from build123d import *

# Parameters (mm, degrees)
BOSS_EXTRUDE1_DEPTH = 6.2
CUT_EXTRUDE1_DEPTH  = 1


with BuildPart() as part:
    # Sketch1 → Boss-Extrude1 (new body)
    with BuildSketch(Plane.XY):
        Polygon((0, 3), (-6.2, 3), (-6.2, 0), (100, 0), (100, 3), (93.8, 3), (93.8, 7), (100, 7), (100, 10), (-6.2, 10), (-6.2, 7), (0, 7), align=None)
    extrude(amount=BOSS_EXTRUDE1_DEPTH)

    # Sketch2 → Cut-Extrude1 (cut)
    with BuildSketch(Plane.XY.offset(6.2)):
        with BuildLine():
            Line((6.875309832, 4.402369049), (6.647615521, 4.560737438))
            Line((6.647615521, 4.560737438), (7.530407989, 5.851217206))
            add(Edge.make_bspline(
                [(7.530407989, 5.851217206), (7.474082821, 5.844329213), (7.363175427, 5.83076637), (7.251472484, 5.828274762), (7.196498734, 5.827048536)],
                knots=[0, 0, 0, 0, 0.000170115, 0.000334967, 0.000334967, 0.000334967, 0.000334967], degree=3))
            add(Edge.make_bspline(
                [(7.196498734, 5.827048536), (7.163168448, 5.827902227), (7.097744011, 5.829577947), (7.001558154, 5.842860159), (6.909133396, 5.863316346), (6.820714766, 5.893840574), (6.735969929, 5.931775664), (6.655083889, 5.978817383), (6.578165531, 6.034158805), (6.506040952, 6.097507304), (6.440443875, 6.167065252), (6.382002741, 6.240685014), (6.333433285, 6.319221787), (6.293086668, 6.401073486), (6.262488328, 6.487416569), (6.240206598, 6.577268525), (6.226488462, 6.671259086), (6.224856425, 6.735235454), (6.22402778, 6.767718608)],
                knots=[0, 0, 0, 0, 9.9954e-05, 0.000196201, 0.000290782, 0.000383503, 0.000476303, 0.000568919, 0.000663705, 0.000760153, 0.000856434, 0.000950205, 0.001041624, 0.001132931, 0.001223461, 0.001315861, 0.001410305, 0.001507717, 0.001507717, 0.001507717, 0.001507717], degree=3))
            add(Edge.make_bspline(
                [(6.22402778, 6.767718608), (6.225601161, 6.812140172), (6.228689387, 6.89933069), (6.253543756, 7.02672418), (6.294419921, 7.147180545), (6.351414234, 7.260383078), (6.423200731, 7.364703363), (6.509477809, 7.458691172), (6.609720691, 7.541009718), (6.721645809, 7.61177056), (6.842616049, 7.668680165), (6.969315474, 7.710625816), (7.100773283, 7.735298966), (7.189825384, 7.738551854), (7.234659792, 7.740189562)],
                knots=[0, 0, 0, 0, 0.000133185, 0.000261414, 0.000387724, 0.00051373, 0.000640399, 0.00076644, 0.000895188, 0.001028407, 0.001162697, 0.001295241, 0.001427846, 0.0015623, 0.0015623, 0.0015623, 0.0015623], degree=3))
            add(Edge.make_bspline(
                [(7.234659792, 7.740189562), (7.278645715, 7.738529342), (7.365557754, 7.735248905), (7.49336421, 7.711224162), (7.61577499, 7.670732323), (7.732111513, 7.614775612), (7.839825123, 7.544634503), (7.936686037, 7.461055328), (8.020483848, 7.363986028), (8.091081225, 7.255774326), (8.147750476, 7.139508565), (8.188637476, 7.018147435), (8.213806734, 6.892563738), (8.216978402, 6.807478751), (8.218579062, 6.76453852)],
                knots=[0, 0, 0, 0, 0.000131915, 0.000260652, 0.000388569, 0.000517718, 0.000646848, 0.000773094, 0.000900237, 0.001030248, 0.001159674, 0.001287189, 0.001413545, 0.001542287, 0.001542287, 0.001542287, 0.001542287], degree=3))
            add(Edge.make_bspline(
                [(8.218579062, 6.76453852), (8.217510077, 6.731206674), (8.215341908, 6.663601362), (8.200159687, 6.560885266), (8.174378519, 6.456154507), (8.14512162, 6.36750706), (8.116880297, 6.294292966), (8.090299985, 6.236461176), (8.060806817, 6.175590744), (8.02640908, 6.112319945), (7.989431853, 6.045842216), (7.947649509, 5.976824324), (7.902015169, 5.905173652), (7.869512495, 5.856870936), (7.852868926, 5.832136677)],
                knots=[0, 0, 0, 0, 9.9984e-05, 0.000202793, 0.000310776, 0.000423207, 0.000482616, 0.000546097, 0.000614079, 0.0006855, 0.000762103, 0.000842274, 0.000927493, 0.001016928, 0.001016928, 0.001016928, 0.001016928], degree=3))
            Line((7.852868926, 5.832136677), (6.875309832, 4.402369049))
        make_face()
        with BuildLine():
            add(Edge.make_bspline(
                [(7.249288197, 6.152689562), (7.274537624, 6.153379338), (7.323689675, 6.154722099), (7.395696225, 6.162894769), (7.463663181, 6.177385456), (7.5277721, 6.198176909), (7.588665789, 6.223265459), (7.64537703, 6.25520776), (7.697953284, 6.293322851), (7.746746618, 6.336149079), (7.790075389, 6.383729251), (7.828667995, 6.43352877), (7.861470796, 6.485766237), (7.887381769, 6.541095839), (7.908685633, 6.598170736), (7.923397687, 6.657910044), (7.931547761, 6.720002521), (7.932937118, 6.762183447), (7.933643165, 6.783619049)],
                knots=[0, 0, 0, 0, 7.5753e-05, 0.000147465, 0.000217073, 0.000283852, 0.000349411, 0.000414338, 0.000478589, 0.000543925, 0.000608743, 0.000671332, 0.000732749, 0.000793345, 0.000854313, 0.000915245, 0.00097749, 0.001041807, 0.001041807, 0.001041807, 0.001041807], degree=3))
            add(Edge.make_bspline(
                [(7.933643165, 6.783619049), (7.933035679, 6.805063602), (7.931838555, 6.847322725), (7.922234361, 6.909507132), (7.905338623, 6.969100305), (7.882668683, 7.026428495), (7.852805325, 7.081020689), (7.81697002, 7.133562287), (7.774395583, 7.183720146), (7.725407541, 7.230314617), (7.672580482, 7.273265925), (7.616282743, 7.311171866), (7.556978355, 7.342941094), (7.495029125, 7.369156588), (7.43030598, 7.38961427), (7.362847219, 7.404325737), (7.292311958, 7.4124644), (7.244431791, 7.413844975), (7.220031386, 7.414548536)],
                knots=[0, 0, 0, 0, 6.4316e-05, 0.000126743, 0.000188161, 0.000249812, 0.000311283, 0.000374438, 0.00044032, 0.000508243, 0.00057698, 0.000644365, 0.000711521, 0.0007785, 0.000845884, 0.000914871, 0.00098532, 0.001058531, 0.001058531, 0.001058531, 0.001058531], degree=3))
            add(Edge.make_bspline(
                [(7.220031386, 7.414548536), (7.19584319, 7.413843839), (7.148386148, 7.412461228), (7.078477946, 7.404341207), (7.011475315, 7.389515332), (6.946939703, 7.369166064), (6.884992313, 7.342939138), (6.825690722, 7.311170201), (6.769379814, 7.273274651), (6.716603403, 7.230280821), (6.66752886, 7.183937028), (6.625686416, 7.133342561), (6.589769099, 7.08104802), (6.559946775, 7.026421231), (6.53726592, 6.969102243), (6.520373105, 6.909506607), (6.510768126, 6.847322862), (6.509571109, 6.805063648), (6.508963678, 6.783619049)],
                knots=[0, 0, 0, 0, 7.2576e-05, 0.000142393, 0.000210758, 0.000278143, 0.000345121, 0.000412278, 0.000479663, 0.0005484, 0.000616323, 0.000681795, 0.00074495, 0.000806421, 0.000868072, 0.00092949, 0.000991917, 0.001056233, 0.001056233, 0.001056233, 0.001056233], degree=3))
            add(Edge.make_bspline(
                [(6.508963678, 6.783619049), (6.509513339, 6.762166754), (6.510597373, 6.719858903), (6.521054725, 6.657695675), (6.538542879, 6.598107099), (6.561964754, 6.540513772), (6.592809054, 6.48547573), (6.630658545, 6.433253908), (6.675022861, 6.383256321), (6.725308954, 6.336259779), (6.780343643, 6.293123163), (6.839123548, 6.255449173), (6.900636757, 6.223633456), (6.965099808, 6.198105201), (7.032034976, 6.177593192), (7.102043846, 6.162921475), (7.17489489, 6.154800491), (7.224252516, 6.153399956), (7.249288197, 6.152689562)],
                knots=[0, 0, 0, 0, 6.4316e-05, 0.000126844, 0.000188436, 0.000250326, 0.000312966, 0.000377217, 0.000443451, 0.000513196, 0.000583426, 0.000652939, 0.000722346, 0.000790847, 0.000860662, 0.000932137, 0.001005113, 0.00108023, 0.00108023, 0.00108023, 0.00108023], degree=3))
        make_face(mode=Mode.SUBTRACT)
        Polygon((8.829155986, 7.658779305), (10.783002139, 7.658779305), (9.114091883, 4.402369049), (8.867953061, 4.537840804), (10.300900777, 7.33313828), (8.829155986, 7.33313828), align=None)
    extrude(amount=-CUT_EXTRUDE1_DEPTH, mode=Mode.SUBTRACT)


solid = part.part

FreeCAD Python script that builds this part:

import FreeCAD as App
import Part
import Sketcher


def add_polygon(sketch, points):
    """Adds a closed chain of lines whose ends are joined by coincident constraints."""
    first, n = sketch.GeometryCount, len(points)
    for a, b in zip(points, points[1:] + points[:1]):
        sketch.addGeometry(Part.LineSegment(App.Vector(*a, 0), App.Vector(*b, 0)), False)
    for i in range(n):
        sketch.addConstraint(Sketcher.Constraint("Coincident", first + i, 2, first + (i + 1) % n, 1))

doc = App.newDocument("Part")
body = doc.addObject("PartDesign::Body", "Body")

sketch1 = body.newObject("Sketcher::SketchObject", "Sketch")
sketch1.AttachmentSupport = (doc.getObject("XY_Plane"), [""])
sketch1.MapMode = "FlatFace"
add_polygon(sketch1, [(0, 3), (-6.2, 3), (-6.2, 0), (100, 0), (100, 3), (93.8, 3), (93.8, 7), (100, 7), (100, 10), (-6.2, 10), (-6.2, 7), (0, 7)])
sketch1.addConstraint(Sketcher.Constraint("Horizontal", 0))
sketch1.addConstraint(Sketcher.Constraint("Vertical", 1))
sketch1.addConstraint(Sketcher.Constraint("Horizontal", 2))
sketch1.addConstraint(Sketcher.Constraint("Vertical", 3))
sketch1.addConstraint(Sketcher.Constraint("Horizontal", 4))
sketch1.addConstraint(Sketcher.Constraint("Vertical", 5))
sketch1.addConstraint(Sketcher.Constraint("Horizontal", 6))
sketch1.addConstraint(Sketcher.Constraint("Vertical", 7))
sketch1.addConstraint(Sketcher.Constraint("Horizontal", 8))
sketch1.addConstraint(Sketcher.Constraint("Vertical", 9))
sketch1.addConstraint(Sketcher.Constraint("Horizontal", 10))
sketch1.addConstraint(Sketcher.Constraint("Vertical", 11))
sketch1.addConstraint(Sketcher.Constraint("PointOnObject", 1, 2, -1))
sketch1.addConstraint(Sketcher.Constraint("PointOnObject", 10, 2, -2))
sketch1.addConstraint(Sketcher.Constraint("Horizontal", 0, 2, 3, 2))
sketch1.addConstraint(Sketcher.Constraint("Horizontal", 6, 2, 9, 2))
sketch1.addConstraint(Sketcher.Constraint("Vertical", 3, 2, 6, 2))
sketch1.addConstraint(Sketcher.Constraint("Vertical", 1, 2, 8, 2))
sketch1.addConstraint(Sketcher.Constraint("Equal", 0, 4))
sketch1.addConstraint(Sketcher.Constraint("Equal", 3, 7))
sketch1.addConstraint(Sketcher.Constraint("DistanceY", 1, 2, 1, 1, 3.0))
sketch1.addConstraint(Sketcher.Constraint("DistanceY", 5, 1, 5, 2, 4.0))
sketch1.addConstraint(Sketcher.Constraint("DistanceX", 0, 2, 0, 1, 6.2))
sketch1.addConstraint(Sketcher.Constraint("DistanceX", 2, 1, 2, 2, 106.2))
pad1 = body.newObject("PartDesign::Pad", "Pad")
pad1.Profile = sketch1
pad1.Length = 6.2

sketch2 = body.newObject("Sketcher::SketchObject", "Sketch001")
sketch2.AttachmentSupport = (doc.getObject("XY_Plane"), [""])
sketch2.MapMode = "FlatFace"
sketch2.AttachmentOffset = App.Placement(App.Vector(0, 0, 6.2), App.Rotation())
sketch2.addGeometry(Part.LineSegment(App.Vector(6.647616, 4.560737, 0), App.Vector(6.87531, 4.402369, 0)), False)
sketch2.addGeometry(Part.LineSegment(App.Vector(6.87531, 4.402369, 0), App.Vector(7.852869, 5.832137, 0)), False)
sketch2.addGeometry(Part.BSplineCurve([App.Vector(8.218579, 6.764539, 0), App.Vector(8.21751, 6.731207, 0), App.Vector(8.215342, 6.663601, 0), App.Vector(8.20016, 6.560885, 0), App.Vector(8.174379, 6.456155, 0), App.Vector(8.145122, 6.367507, 0), App.Vector(8.11688, 6.294293, 0), App.Vector(8.0903, 6.236461, 0), App.Vector(8.060807, 6.175591, 0), App.Vector(8.026409, 6.11232, 0), App.Vector(7.989432, 6.045842, 0), App.Vector(7.94765, 5.976824, 0), App.Vector(7.902015, 5.905174, 0), App.Vector(7.869512, 5.856871, 0), App.Vector(7.852869, 5.832137, 0)], [4, 1, 1, 1, 1, 1, 1, 1, 1, 1, 1, 1, 4], [0, 0.000099984, 0.000202793, 0.000310776, 0.000423207, 0.000482616, 0.000546097, 0.000614079, 0.0006855, 0.000762103, 0.000842274, 0.000927493, 0.001016928], False, 3, [1, 1, 1, 1, 1, 1, 1, 1, 1, 1, 1, 1, 1, 1, 1], False), False)
sketch2.addGeometry(Part.BSplineCurve([App.Vector(7.23466, 7.74019, 0), App.Vector(7.278646, 7.738529, 0), App.Vector(7.365558, 7.735249, 0), App.Vector(7.493364, 7.711224, 0), App.Vector(7.615775, 7.670732, 0), App.Vector(7.732112, 7.614776, 0), App.Vector(7.839825, 7.544635, 0), App.Vector(7.936686, 7.461055, 0), App.Vector(8.020484, 7.363986, 0), App.Vector(8.091081, 7.255774, 0), App.Vector(8.14775, 7.139509, 0), App.Vector(8.188637, 7.018147, 0), App.Vector(8.213807, 6.892564, 0), App.Vector(8.216978, 6.807479, 0), App.Vector(8.218579, 6.764539, 0)], [4, 1, 1, 1, 1, 1, 1, 1, 1, 1, 1, 1, 4], [0, 0.000131915, 0.000260652, 0.000388569, 0.000517718, 0.000646848, 0.000773094, 0.000900237, 0.001030248, 0.001159674, 0.001287189, 0.001413545, 0.001542287], False, 3, [1, 1, 1, 1, 1, 1, 1, 1, 1, 1, 1, 1, 1, 1, 1], False), False)
sketch2.addGeometry(Part.BSplineCurve([App.Vector(6.224028, 6.767719, 0), App.Vector(6.225601, 6.81214, 0), App.Vector(6.228689, 6.899331, 0), App.Vector(6.253544, 7.026724, 0), App.Vector(6.29442, 7.147181, 0), App.Vector(6.351414, 7.260383, 0), App.Vector(6.423201, 7.364703, 0), App.Vector(6.509478, 7.458691, 0), App.Vector(6.609721, 7.54101, 0), App.Vector(6.721646, 7.611771, 0), App.Vector(6.842616, 7.66868, 0), App.Vector(6.969315, 7.710626, 0), App.Vector(7.100773, 7.735299, 0), App.Vector(7.189825, 7.738552, 0), App.Vector(7.23466, 7.74019, 0)], [4, 1, 1, 1, 1, 1, 1, 1, 1, 1, 1, 1, 4], [0, 0.000133185, 0.000261414, 0.000387724, 0.00051373, 0.000640399, 0.00076644, 0.000895188, 0.001028407, 0.001162697, 0.001295241, 0.001427846, 0.0015623], False, 3, [1, 1, 1, 1, 1, 1, 1, 1, 1, 1, 1, 1, 1, 1, 1], False), False)
sketch2.addGeometry(Part.BSplineCurve([App.Vector(7.196499, 5.827049, 0), App.Vector(7.163168, 5.827902, 0), App.Vector(7.097744, 5.829578, 0), App.Vector(7.001558, 5.84286, 0), App.Vector(6.909133, 5.863316, 0), App.Vector(6.820715, 5.893841, 0), App.Vector(6.73597, 5.931776, 0), App.Vector(6.655084, 5.978817, 0), App.Vector(6.578166, 6.034159, 0), App.Vector(6.506041, 6.097507, 0), App.Vector(6.440444, 6.167065, 0), App.Vector(6.382003, 6.240685, 0), App.Vector(6.333433, 6.319222, 0), App.Vector(6.293087, 6.401073, 0), App.Vector(6.262488, 6.487417, 0), App.Vector(6.240207, 6.577269, 0), App.Vector(6.226488, 6.671259, 0), App.Vector(6.224856, 6.735235, 0), App.Vector(6.224028, 6.767719, 0)], [4, 1, 1, 1, 1, 1, 1, 1, 1, 1, 1, 1, 1, 1, 1, 1, 4], [0, 0.000099954, 0.000196201, 0.000290782, 0.000383503, 0.000476303, 0.000568919, 0.000663705, 0.000760153, 0.000856434, 0.000950205, 0.001041624, 0.001132931, 0.001223461, 0.001315861, 0.001410305, 0.001507717], False, 3, [1, 1, 1, 1, 1, 1, 1, 1, 1, 1, 1, 1, 1, 1, 1, 1, 1, 1, 1], False), False)
sketch2.addGeometry(Part.BSplineCurve([App.Vector(7.530408, 5.851217, 0), App.Vector(7.474083, 5.844329, 0), App.Vector(7.363175, 5.830766, 0), App.Vector(7.251472, 5.828275, 0), App.Vector(7.196499, 5.827049, 0)], [4, 1, 4], [0, 0.000170115, 0.000334967], False, 3, [1, 1, 1, 1, 1], False), False)
sketch2.addGeometry(Part.LineSegment(App.Vector(7.530408, 5.851217, 0), App.Vector(6.647616, 4.560737, 0)), False)
sketch2.addGeometry(Part.BSplineCurve([App.Vector(6.508964, 6.783619, 0), App.Vector(6.509513, 6.762167, 0), App.Vector(6.510597, 6.719859, 0), App.Vector(6.521055, 6.657696, 0), App.Vector(6.538543, 6.598107, 0), App.Vector(6.561965, 6.540514, 0), App.Vector(6.592809, 6.485476, 0), App.Vector(6.630659, 6.433254, 0), App.Vector(6.675023, 6.383256, 0), App.Vector(6.725309, 6.33626, 0), App.Vector(6.780344, 6.293123, 0), App.Vector(6.839124, 6.255449, 0), App.Vector(6.900637, 6.223633, 0), App.Vector(6.9651, 6.198105, 0), App.Vector(7.032035, 6.177593, 0), App.Vector(7.102044, 6.162921, 0), App.Vector(7.174895, 6.1548, 0), App.Vector(7.224253, 6.1534, 0), App.Vector(7.249288, 6.15269, 0)], [4, 1, 1, 1, 1, 1, 1, 1, 1, 1, 1, 1, 1, 1, 1, 1, 4], [0, 0.000064316, 0.000126844, 0.000188436, 0.000250326, 0.000312966, 0.000377217, 0.000443451, 0.000513196, 0.000583426, 0.000652939, 0.000722346, 0.000790847, 0.000860662, 0.000932137, 0.001005113, 0.00108023], False, 3, [1, 1, 1, 1, 1, 1, 1, 1, 1, 1, 1, 1, 1, 1, 1, 1, 1, 1, 1], False), False)
sketch2.addGeometry(Part.BSplineCurve([App.Vector(7.220031, 7.414549, 0), App.Vector(7.195843, 7.413844, 0), App.Vector(7.148386, 7.412461, 0), App.Vector(7.078478, 7.404341, 0), App.Vector(7.011475, 7.389515, 0), App.Vector(6.94694, 7.369166, 0), App.Vector(6.884992, 7.342939, 0), App.Vector(6.825691, 7.31117, 0), App.Vector(6.76938, 7.273275, 0), App.Vector(6.716603, 7.230281, 0), App.Vector(6.667529, 7.183937, 0), App.Vector(6.625686, 7.133343, 0), App.Vector(6.589769, 7.081048, 0), App.Vector(6.559947, 7.026421, 0), App.Vector(6.537266, 6.969102, 0), App.Vector(6.520373, 6.909507, 0), App.Vector(6.510768, 6.847323, 0), App.Vector(6.509571, 6.805064, 0), App.Vector(6.508964, 6.783619, 0)], [4, 1, 1, 1, 1, 1, 1, 1, 1, 1, 1, 1, 1, 1, 1, 1, 4], [0, 0.000072576, 0.000142393, 0.000210758, 0.000278143, 0.000345121, 0.000412278, 0.000479663, 0.0005484, 0.000616323, 0.000681795, 0.00074495, 0.000806421, 0.000868072, 0.00092949, 0.000991917, 0.001056233], False, 3, [1, 1, 1, 1, 1, 1, 1, 1, 1, 1, 1, 1, 1, 1, 1, 1, 1, 1, 1], False), False)
sketch2.addGeometry(Part.BSplineCurve([App.Vector(7.933643, 6.783619, 0), App.Vector(7.933036, 6.805064, 0), App.Vector(7.931839, 6.847323, 0), App.Vector(7.922234, 6.909507, 0), App.Vector(7.905339, 6.9691, 0), App.Vector(7.882669, 7.026428, 0), App.Vector(7.852805, 7.081021, 0), App.Vector(7.81697, 7.133562, 0), App.Vector(7.774396, 7.18372, 0), App.Vector(7.725408, 7.230315, 0), App.Vector(7.67258, 7.273266, 0), App.Vector(7.616283, 7.311172, 0), App.Vector(7.556978, 7.342941, 0), App.Vector(7.495029, 7.369157, 0), App.Vector(7.430306, 7.389614, 0), App.Vector(7.362847, 7.404326, 0), App.Vector(7.292312, 7.412464, 0), App.Vector(7.244432, 7.413845, 0), App.Vector(7.220031, 7.414549, 0)], [4, 1, 1, 1, 1, 1, 1, 1, 1, 1, 1, 1, 1, 1, 1, 1, 4], [0, 0.000064316, 0.000126743, 0.000188161, 0.000249812, 0.000311283, 0.000374438, 0.00044032, 0.000508243, 0.00057698, 0.000644365, 0.000711521, 0.0007785, 0.000845884, 0.000914871, 0.00098532, 0.001058531], False, 3, [1, 1, 1, 1, 1, 1, 1, 1, 1, 1, 1, 1, 1, 1, 1, 1, 1, 1, 1], False), False)
sketch2.addGeometry(Part.BSplineCurve([App.Vector(7.249288, 6.15269, 0), App.Vector(7.274538, 6.153379, 0), App.Vector(7.32369, 6.154722, 0), App.Vector(7.395696, 6.162895, 0), App.Vector(7.463663, 6.177385, 0), App.Vector(7.527772, 6.198177, 0), App.Vector(7.588666, 6.223265, 0), App.Vector(7.645377, 6.255208, 0), App.Vector(7.697953, 6.293323, 0), App.Vector(7.746747, 6.336149, 0), App.Vector(7.790075, 6.383729, 0), App.Vector(7.828668, 6.433529, 0), App.Vector(7.861471, 6.485766, 0), App.Vector(7.887382, 6.541096, 0), App.Vector(7.908686, 6.598171, 0), App.Vector(7.923398, 6.65791, 0), App.Vector(7.931548, 6.720003, 0), App.Vector(7.932937, 6.762183, 0), App.Vector(7.933643, 6.783619, 0)], [4, 1, 1, 1, 1, 1, 1, 1, 1, 1, 1, 1, 1, 1, 1, 1, 4], [0, 0.000075753, 0.000147465, 0.000217073, 0.000283852, 0.000349411, 0.000414338, 0.000478589, 0.000543925, 0.000608743, 0.000671332, 0.000732749, 0.000793345, 0.000854313, 0.000915245, 0.00097749, 0.001041807], False, 3, [1, 1, 1, 1, 1, 1, 1, 1, 1, 1, 1, 1, 1, 1, 1, 1, 1, 1, 1], False), False)
add_polygon(sketch2, [(10.783002, 7.658779), (8.829156, 7.658779), (8.829156, 7.333138), (10.300901, 7.333138), (8.867953, 4.537841), (9.114092, 4.402369)])
sketch2.addConstraint(Sketcher.Constraint("Block", 2))
sketch2.addConstraint(Sketcher.Constraint("Block", 3))
sketch2.addConstraint(Sketcher.Constraint("Block", 4))
sketch2.addConstraint(Sketcher.Constraint("Block", 5))
sketch2.addConstraint(Sketcher.Constraint("Block", 6))
sketch2.addConstraint(Sketcher.Constraint("Block", 8))
sketch2.addConstraint(Sketcher.Constraint("Block", 9))
sketch2.addConstraint(Sketcher.Constraint("Block", 10))
sketch2.addConstraint(Sketcher.Constraint("Block", 11))
sketch2.addConstraint(Sketcher.Constraint("Coincident", 0, 2, 1, 1))
sketch2.addConstraint(Sketcher.Constraint("Coincident", 1, 2, 2, 2))
sketch2.addConstraint(Sketcher.Constraint("Coincident", 6, 1, 7, 1))
sketch2.addConstraint(Sketcher.Constraint("Coincident", 7, 2, 0, 1))
sketch2.addConstraint(Sketcher.Constraint("Horizontal", 12))
sketch2.addConstraint(Sketcher.Constraint("Vertical", 13))
sketch2.addConstraint(Sketcher.Constraint("Horizontal", 14))
sketch2.addConstraint(Sketcher.Constraint("Horizontal", 0, 2, 16, 2))
sketch2.addConstraint(Sketcher.Constraint("DistanceY", 1, 2, 13, 2, 1.501002))
sketch2.addConstraint(Sketcher.Constraint("DistanceY", 13, 2, 13, 1, 0.325641))
sketch2.addConstraint(Sketcher.Constraint("DistanceX", -1, 1, 14, 2, 10.300901))
sketch2.addConstraint(Sketcher.Constraint("DistanceY", 7, 2, 1, 2, 1.271399))
sketch2.addConstraint(Sketcher.Constraint("DistanceX", 14, 2, 17, 2, 0.482101))
sketch2.addConstraint(Sketcher.Constraint("Distance", 1, 1.73201))
sketch2.addConstraint(Sketcher.Constraint("Distance", 7, 1.563541))
sketch2.addConstraint(Sketcher.Constraint("DistanceX", 12, 2, 12, 1, 1.953846))
sketch2.addConstraint(Sketcher.Constraint("DistanceX", -1, 1, 0, 2, 6.87531))
sketch2.addConstraint(Sketcher.Constraint("DistanceY", -1, 1, 15, 2, 4.537841))
sketch2.addConstraint(Sketcher.Constraint("DistanceX", -1, 1, 16, 2, 9.114092))
sketch2.addConstraint(Sketcher.Constraint("DistanceX", 15, 2, 16, 2, 0.246139))
pocket1 = body.newObject("PartDesign::Pocket", "Pocket")
pocket1.Profile = sketch2
pocket1.Length = 1

doc.recompute()
